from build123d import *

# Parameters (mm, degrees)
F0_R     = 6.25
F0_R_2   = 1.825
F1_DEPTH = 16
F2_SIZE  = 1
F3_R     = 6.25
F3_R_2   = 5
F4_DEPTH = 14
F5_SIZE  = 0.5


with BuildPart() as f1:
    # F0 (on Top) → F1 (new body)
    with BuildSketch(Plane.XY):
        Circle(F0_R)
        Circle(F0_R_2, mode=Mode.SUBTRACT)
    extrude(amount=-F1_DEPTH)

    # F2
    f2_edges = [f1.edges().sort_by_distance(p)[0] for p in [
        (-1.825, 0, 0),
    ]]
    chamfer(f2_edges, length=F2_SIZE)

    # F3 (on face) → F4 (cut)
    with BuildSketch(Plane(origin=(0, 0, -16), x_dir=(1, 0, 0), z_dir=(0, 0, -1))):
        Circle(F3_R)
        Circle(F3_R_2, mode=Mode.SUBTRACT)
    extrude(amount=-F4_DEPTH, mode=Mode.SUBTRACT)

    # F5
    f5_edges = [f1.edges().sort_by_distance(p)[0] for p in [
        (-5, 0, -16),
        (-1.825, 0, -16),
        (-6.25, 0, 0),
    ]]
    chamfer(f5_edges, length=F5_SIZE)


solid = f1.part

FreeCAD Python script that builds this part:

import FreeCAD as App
import Part
import Sketcher

V = App.Vector


def edges_at(feature, points):
    """Names of the edges that pass closest to the given points."""
    edges = feature.Shape.Edges
    near = lambda p: min(range(len(edges)), key=lambda i: edges[i].distToShape(Part.Vertex(*p))[0])
    return sorted({f"Edge{near(p) + 1}" for p in points})

doc = App.newDocument("Part")
body = doc.addObject("PartDesign::Body", "Body")

# Sketch on XY plane
sketch1 = body.newObject("Sketcher::SketchObject", "Sketch")
sketch1.AttachmentSupport = (doc.getObject("XY_Plane"), [""])
sketch1.MapMode = "FlatFace"
sketch1.addGeometry(Part.Circle(V(0, 0, 0), V(0, 0, 1), 6.2), False)
sketch1.addGeometry(Part.Circle(V(0, 0, 0), V(0, 0, 1), 1.8), False)
sketch1.addConstraint(Sketcher.Constraint("Coincident", 0, 3, -1, 1))
sketch1.addConstraint(Sketcher.Constraint("Coincident", 1, 3, -1, 1))
sketch1.addConstraint(Sketcher.Constraint("Diameter", 0, 12.5))
sketch1.addConstraint(Sketcher.Constraint("Diameter", 1, 3.65))
pad1 = body.newObject("PartDesign::Pad", "Pad")
pad1.Profile = sketch1
pad1.Length = 16
pad1.Reversed = True
doc.recompute()

chamfer = body.newObject("PartDesign::Chamfer", "Chamfer")
chamfer.Base = (pad1, edges_at(pad1, [(-1.825, 0, 0)]))
chamfer.Size = 1

# Sketch on XY plane
sketch2 = body.newObject("Sketcher::SketchObject", "Sketch001")
sketch2.AttachmentSupport = (doc.getObject("XY_Plane"), [""])
sketch2.MapMode = "FlatFace"
sketch2.AttachmentOffset = App.Placement(V(0, 0, -16), App.Rotation())
sketch2.addGeometry(Part.Circle(V(0, 0, 0), V(0, 0, 1), 6), False)
sketch2.addGeometry(Part.Circle(V(0, 0, 0), V(0, 0, 1), 5), False)
sketch2.addConstraint(Sketcher.Constraint("Coincident", 0, 3, -1, 1))
sketch2.addConstraint(Sketcher.Constraint("Coincident", 1, 3, -1, 1))
sketch2.addConstraint(Sketcher.Constraint("Diameter", 1, 10.0))
sketch2.addConstraint(Sketcher.Constraint("Diameter", 0, 12.5))
pocket1 = body.newObject("PartDesign::Pocket", "Pocket")
pocket1.Profile = sketch2
pocket1.Length = 14
pocket1.Reversed = True
doc.recompute()

chamfer2 = body.newObject("PartDesign::Chamfer", "Chamfer001")
chamfer2.Base = (pocket1, edges_at(pocket1, [(-5, 0, -16), (-1.825, 0, -16), (-6.25, 0, 0)]))
chamfer2.Size = 0.5

doc.recompute()
